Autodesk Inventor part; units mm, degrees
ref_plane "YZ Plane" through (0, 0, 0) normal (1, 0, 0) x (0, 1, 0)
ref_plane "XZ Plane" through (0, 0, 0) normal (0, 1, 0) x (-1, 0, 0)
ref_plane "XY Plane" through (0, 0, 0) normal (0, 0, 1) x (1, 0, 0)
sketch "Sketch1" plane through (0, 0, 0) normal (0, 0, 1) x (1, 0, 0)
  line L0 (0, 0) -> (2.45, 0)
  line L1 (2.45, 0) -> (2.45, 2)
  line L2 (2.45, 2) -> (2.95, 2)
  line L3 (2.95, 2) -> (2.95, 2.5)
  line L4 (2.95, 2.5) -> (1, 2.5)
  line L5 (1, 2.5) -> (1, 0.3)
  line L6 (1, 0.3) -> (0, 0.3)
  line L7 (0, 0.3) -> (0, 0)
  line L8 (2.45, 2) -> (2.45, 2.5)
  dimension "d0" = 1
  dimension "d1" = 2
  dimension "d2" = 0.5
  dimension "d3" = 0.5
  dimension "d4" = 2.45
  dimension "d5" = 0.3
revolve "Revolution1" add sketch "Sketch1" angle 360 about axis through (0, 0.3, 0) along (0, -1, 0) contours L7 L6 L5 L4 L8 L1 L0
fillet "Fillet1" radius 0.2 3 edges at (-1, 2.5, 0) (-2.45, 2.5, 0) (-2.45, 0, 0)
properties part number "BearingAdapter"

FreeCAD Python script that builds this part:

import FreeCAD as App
import Part
import Sketcher
from FreeCAD import Vector
Q = App.Units.Quantity


def edges_at(feature, points):
    """Names of the edges that pass closest to the given points."""
    edges = feature.Shape.Edges
    near = lambda p: min(range(len(edges)), key=lambda i: edges[i].distToShape(Part.Vertex(*p))[0])
    return sorted({f"Edge{near(p) + 1}" for p in points})

doc = App.newDocument("Part")
body = doc.addObject("PartDesign::Body", "Body")

sketch1 = body.newObject("Sketcher::SketchObject", "Sketch")
sketch1.AttachmentSupport = (doc.getObject("XY_Plane"), [""])
sketch1.MapMode = "FlatFace"
sketch1.addGeometry(Part.LineSegment(Vector(0, 0.3, 0), Vector(0, 0, 0)), False)
sketch1.addGeometry(Part.LineSegment(Vector(0, 0, 0), Vector(2.45, 0, 0)), False)
sketch1.addGeometry(Part.LineSegment(Vector(2.45, 0, 0), Vector(2.45, 2.5, 0)), False)
sketch1.addGeometry(Part.LineSegment(Vector(2.45, 2.5, 0), Vector(1, 2.5, 0)), False)
sketch1.addGeometry(Part.LineSegment(Vector(1, 2.5, 0), Vector(1, 0.3, 0)), False)
sketch1.addGeometry(Part.LineSegment(Vector(1, 0.3, 0), Vector(0, 0.3, 0)), False)
sketch1.addConstraint(Sketcher.Constraint("Coincident", 0, 2, 1, 1))
sketch1.addConstraint(Sketcher.Constraint("Coincident", 1, 2, 2, 1))
sketch1.addConstraint(Sketcher.Constraint("Coincident", 2, 2, 3, 1))
sketch1.addConstraint(Sketcher.Constraint("Coincident", 3, 2, 4, 1))
sketch1.addConstraint(Sketcher.Constraint("Coincident", 4, 2, 5, 1))
sketch1.addConstraint(Sketcher.Constraint("Coincident", 5, 2, 0, 1))
sketch1.addConstraint(Sketcher.Constraint("Vertical", 0))
sketch1.addConstraint(Sketcher.Constraint("Horizontal", 1))
sketch1.addConstraint(Sketcher.Constraint("Vertical", 2))
sketch1.addConstraint(Sketcher.Constraint("Horizontal", 3))
sketch1.addConstraint(Sketcher.Constraint("Vertical", 4))
sketch1.addConstraint(Sketcher.Constraint("Horizontal", 5))
sketch1.addConstraint(Sketcher.Constraint("Coincident", 0, 2, -1, 1))
sketch1.addConstraint(Sketcher.Constraint("DistanceX", 5, 2, 5, 1, Q("1 mm")))
sketch1.addConstraint(Sketcher.Constraint("DistanceY", 0, 2, 0, 1, Q("0.3 mm")))
sketch1.addConstraint(Sketcher.Constraint("DistanceX", 1, 1, 1, 2, Q("2.45 mm")))
sketch1.addConstraint(Sketcher.Constraint("DistanceY", 2, 1, 2, 2, Q("2.5 mm")))
revolution = body.newObject("PartDesign::Revolution", "Revolution")
revolution.Profile = sketch1
revolution.ReferenceAxis = (sketch1, ["V_Axis"])
revolution.Angle = 360
doc.recompute()

fillet = body.newObject("PartDesign::Fillet", "Fillet")
fillet.Base = (revolution, edges_at(revolution, [(-1, 2.5, 0), (-2.45, 2.5, 0), (-2.45, 0, 0)]))
fillet.Radius = 0.2

doc.recompute()
